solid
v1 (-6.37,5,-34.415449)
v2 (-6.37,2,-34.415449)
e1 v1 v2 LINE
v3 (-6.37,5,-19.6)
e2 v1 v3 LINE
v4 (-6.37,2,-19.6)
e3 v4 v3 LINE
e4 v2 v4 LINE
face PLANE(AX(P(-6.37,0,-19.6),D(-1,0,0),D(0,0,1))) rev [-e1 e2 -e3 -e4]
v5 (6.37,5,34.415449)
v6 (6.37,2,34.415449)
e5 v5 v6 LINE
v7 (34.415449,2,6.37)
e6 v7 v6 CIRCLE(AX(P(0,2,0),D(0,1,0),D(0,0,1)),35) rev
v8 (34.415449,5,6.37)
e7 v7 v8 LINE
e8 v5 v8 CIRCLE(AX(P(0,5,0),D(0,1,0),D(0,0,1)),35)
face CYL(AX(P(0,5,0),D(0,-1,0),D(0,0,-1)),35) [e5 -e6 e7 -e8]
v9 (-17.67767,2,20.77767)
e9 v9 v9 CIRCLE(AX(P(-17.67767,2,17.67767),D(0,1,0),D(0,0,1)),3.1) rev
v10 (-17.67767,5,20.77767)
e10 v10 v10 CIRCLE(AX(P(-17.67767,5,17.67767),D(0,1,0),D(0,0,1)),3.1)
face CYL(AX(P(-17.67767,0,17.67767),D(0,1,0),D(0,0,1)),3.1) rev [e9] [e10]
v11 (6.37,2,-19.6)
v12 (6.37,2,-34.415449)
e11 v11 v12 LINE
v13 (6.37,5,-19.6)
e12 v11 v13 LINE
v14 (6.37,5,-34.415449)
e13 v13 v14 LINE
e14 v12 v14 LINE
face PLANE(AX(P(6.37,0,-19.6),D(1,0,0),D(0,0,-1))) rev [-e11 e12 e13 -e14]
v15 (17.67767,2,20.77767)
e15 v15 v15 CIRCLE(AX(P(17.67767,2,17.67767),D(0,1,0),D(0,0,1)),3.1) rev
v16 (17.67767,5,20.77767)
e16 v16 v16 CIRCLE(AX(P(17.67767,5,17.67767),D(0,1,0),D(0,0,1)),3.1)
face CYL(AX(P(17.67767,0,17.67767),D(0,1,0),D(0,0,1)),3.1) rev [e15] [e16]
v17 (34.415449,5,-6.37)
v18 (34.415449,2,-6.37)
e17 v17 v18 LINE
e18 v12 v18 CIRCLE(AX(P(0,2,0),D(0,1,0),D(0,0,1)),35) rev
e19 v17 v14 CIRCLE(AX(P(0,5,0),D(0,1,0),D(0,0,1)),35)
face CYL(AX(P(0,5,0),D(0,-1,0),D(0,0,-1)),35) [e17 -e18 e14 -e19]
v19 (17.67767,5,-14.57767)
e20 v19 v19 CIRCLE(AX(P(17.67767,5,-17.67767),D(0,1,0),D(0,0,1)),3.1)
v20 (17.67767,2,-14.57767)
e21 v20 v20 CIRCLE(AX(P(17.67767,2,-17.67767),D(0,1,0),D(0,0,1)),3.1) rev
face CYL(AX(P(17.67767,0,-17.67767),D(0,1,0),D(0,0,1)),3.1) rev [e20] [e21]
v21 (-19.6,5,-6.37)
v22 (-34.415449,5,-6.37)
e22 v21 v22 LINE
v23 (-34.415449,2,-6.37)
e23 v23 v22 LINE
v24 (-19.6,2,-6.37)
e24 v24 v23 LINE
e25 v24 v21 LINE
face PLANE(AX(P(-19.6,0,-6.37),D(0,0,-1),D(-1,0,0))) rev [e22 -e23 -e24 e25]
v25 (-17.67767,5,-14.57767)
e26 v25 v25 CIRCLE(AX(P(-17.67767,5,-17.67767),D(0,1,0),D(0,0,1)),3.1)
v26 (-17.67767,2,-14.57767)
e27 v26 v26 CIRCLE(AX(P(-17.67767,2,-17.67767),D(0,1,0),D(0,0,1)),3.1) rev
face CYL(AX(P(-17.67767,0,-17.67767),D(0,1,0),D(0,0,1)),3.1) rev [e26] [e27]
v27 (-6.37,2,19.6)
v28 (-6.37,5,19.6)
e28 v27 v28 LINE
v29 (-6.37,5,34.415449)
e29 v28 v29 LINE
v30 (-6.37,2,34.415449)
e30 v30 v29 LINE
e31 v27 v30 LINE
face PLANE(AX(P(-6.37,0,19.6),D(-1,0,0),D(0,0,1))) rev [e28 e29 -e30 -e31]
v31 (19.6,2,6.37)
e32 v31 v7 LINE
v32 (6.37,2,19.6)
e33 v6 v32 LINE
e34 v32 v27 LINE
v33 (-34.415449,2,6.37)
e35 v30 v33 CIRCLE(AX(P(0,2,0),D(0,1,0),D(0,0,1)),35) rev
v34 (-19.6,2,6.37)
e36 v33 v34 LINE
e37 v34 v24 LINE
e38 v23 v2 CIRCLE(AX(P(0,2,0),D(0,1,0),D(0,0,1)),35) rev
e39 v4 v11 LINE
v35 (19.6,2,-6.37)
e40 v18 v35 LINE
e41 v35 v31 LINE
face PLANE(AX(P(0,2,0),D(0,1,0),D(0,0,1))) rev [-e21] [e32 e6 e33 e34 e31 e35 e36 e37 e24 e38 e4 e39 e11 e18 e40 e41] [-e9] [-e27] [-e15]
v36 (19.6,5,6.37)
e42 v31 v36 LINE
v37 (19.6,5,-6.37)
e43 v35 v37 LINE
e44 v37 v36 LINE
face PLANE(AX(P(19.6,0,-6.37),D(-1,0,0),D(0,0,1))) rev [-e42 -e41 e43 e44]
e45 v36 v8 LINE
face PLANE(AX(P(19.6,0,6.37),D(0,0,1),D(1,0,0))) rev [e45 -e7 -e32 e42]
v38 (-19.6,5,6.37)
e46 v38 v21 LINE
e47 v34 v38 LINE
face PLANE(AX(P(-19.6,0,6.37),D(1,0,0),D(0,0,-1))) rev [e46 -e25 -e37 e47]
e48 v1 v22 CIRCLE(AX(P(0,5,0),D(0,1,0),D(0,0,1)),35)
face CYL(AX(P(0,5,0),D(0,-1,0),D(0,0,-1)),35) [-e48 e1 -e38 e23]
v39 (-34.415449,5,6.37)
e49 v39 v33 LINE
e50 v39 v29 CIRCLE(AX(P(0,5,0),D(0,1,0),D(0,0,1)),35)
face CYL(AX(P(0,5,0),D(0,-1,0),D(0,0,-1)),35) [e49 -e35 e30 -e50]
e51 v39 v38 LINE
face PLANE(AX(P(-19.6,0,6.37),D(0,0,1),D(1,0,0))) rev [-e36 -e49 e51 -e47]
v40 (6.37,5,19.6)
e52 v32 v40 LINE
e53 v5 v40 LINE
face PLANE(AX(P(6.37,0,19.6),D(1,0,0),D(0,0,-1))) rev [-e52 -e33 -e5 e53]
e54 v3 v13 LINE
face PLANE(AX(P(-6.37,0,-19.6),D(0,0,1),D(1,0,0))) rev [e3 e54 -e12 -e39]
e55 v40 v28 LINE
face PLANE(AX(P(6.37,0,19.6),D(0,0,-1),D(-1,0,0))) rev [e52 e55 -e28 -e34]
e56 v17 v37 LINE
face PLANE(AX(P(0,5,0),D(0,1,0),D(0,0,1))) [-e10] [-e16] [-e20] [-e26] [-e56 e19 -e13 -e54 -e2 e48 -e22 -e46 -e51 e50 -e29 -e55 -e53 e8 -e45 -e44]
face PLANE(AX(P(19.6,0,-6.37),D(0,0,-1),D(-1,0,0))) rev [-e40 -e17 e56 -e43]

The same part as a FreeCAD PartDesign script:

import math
import FreeCAD as App
import Part
import Sketcher
Q = App.Units.Quantity

doc = App.newDocument("Part")
params = doc.addObject("Spreadsheet::Sheet", "Params")
for row, (alias, value) in enumerate([
    ("sketch1_diameter", "70 mm"),
    ("pad1_length", "5 mm"),
    ("sketch2_diameter", "6.2 mm"),
    ("sketch3_height", "10.8 mm"),
    ("sketch3_width", "12.74 mm"),
    ("pocket2_length", "5 mm"),
    ("sketch4_height", "5 mm"),
    ("sketch4_width", "12.74 mm"),
    ("sketch5_radius", "35 mm"),
    ("sketch5_width", "12.74 mm"),
    ("pocket4_length", "2 mm"),
], start=1):
    params.set(f"A{row}", alias)
    params.set(f"B{row}", "=" + value)
    params.setAlias(f"B{row}", alias)

body = doc.addObject("PartDesign::Body", "Body")

# Sketch on XZ plane
sketch1 = body.newObject("Sketcher::SketchObject", "Sketch")
sketch1.AttachmentSupport = (doc.getObject("XZ_Plane"), [""])
sketch1.MapMode = "FlatFace"
sketch1.addGeometry(Part.Circle(App.Vector(0, 0, 0), App.Vector(0, 0, 1), 35), False)
sketch1.addConstraint([
    Sketcher.Constraint("Coincident", 0, 3, -1, 1),
    Sketcher.Constraint("Diameter", 0, Q("70 mm")),
])
sketch1.setExpression("Constraints[1]", "Params.sketch1_diameter")
pad1 = body.newObject("PartDesign::Pad", "Pad")
pad1.Profile = sketch1
pad1.setExpression("Length", "Params.pad1_length")
pad1.Reversed = True

# Sketch on XZ plane
sketch2 = body.newObject("Sketcher::SketchObject", "Sketch001")
sketch2.AttachmentSupport = (doc.getObject("XZ_Plane"), [""])
sketch2.MapMode = "FlatFace"
sketch2.AttachmentOffset = App.Placement(App.Vector(0, 0, -5), App.Rotation())
sketch2.addGeometry([
    Part.Circle(App.Vector(-17.7, -17.7, 0), App.Vector(0, 0, 1), 3.1),
    Part.Circle(App.Vector(17.7, -17.7, 0), App.Vector(0, 0, 1), 3.1),
    Part.Circle(App.Vector(17.7, 17.7, 0), App.Vector(0, 0, 1), 3.1),
    Part.Circle(App.Vector(-17.7, 17.7, 0), App.Vector(0, 0, 1), 3.1),
], False)
sketch2.addConstraint([
    Sketcher.Constraint("Equal", 0, 1),
    Sketcher.Constraint("Equal", 1, 2),
    Sketcher.Constraint("Equal", 2, 3),
    Sketcher.Constraint("Symmetric", 0, 3, 2, 3, -1, 1),
    Sketcher.Constraint("Symmetric", 1, 3, 3, 3, -1, 1),
    Sketcher.Constraint("Symmetric", 0, 3, 1, 3, -2),
    Sketcher.Constraint("Diameter", 0, Q("6.2 mm")),
    Sketcher.Constraint("DistanceX", 0, 3, -1, 1, Q("17.67767 mm")),
    Sketcher.Constraint("DistanceY", 0, 3, -1, 1, Q("17.67767 mm")),
])
sketch2.setExpression("Constraints[6]", "Params.sketch2_diameter")
pocket1 = body.newObject("PartDesign::Pocket", "Pocket")
pocket1.Profile = sketch2
pocket1.Type = "ThroughAll"
pocket1.Reversed = True

# Sketch on XZ plane
sketch3 = body.newObject("Sketcher::SketchObject", "Sketch002")
sketch3.AttachmentSupport = (doc.getObject("XZ_Plane"), [""])
sketch3.MapMode = "FlatFace"
sketch3.AttachmentOffset = App.Placement(App.Vector(0, 0, -5), App.Rotation())
sketch3.addGeometry([
    Part.LineSegment(App.Vector(-6, -30, 0), App.Vector(-6, -20, 0)),
    Part.LineSegment(App.Vector(-6, -20, 0), App.Vector(6, -20, 0)),
    Part.LineSegment(App.Vector(6, -20, 0), App.Vector(6, -30, 0)),
    Part.LineSegment(App.Vector(6, -30, 0), App.Vector(-6, -30, 0)),
], False)
sketch3.addConstraint([
    Sketcher.Constraint("Coincident", 0, 2, 1, 1),
    Sketcher.Constraint("Coincident", 1, 2, 2, 1),
    Sketcher.Constraint("Coincident", 2, 2, 3, 1),
    Sketcher.Constraint("Coincident", 3, 2, 0, 1),
    Sketcher.Constraint("Vertical", 0),
    Sketcher.Constraint("Horizontal", 1),
    Sketcher.Constraint("Vertical", 2),
    Sketcher.Constraint("Horizontal", 3),
    Sketcher.Constraint("DistanceY", 0, 1, 0, 2, Q("10.8 mm")),
    Sketcher.Constraint("DistanceX", 1, 1, 1, 2, Q("12.74 mm")),
    Sketcher.Constraint("DistanceY", 0, 2, -1, 1, Q("19.6 mm")),
    Sketcher.Constraint("DistanceX", 0, 2, -1, 1, Q("6.37 mm")),
])
sketch3.setExpression("Constraints[8]", "Params.sketch3_height")
sketch3.setExpression("Constraints[9]", "Params.sketch3_width")
pocket2 = body.newObject("PartDesign::Pocket", "Pocket001")
pocket2.Profile = sketch3
pocket2.setExpression("Length", "Params.pocket2_length")
pocket2.Reversed = True
doc.recompute()

polarpattern = body.newObject("PartDesign::PolarPattern", "PolarPattern")
polarpattern.Originals = [pocket2]
polarpattern.Axis = (doc.getObject("Y_Axis"), [""])
polarpattern.Angle = 360
polarpattern.Occurrences = 4
body.Tip = polarpattern

# Sketch on XY plane
sketch4 = body.newObject("Sketcher::SketchObject", "Sketch003")
sketch4.AttachmentSupport = (doc.getObject("XY_Plane"), [""])
sketch4.MapMode = "FlatFace"
sketch4.AttachmentOffset = App.Placement(App.Vector(0, 0, -30.4), App.Rotation())
sketch4.addGeometry([
    Part.LineSegment(App.Vector(-6, 5, 0), App.Vector(-6, 0, 0)),
    Part.LineSegment(App.Vector(-6, 0, 0), App.Vector(6, 0, 0)),
    Part.LineSegment(App.Vector(6, 0, 0), App.Vector(6, 5, 0)),
    Part.LineSegment(App.Vector(6, 5, 0), App.Vector(-6, 5, 0)),
], False)
sketch4.addConstraint([
    Sketcher.Constraint("Coincident", 0, 2, 1, 1),
    Sketcher.Constraint("Coincident", 1, 2, 2, 1),
    Sketcher.Constraint("Coincident", 2, 2, 3, 1),
    Sketcher.Constraint("Coincident", 3, 2, 0, 1),
    Sketcher.Constraint("Vertical", 0),
    Sketcher.Constraint("Horizontal", 1),
    Sketcher.Constraint("Vertical", 2),
    Sketcher.Constraint("Horizontal", 3),
    Sketcher.Constraint("Symmetric", 0, 2, 1, 2, -1, 1),
    Sketcher.Constraint("DistanceY", 0, 2, 0, 1, Q("5 mm")),
    Sketcher.Constraint("DistanceX", 1, 1, 1, 2, Q("12.74 mm")),
])
sketch4.setExpression("Constraints[9]", "Params.sketch4_height")
sketch4.setExpression("Constraints[10]", "Params.sketch4_width")
pocket3 = body.newObject("PartDesign::Pocket", "Pocket002")
pocket3.Profile = sketch4
pocket3.Type = "ThroughAll"
doc.recompute()

polarpattern2 = body.newObject("PartDesign::PolarPattern", "PolarPattern001")
polarpattern2.Originals = [pocket3]
polarpattern2.Axis = (doc.getObject("Y_Axis"), [""])
polarpattern2.Angle = 360
polarpattern2.Occurrences = 4
body.Tip = polarpattern2

# Sketch on XZ plane
sketch5 = body.newObject("Sketcher::SketchObject", "Sketch004")
sketch5.AttachmentSupport = (doc.getObject("XZ_Plane"), [""])
sketch5.MapMode = "FlatFace"
sketch5.addGeometry([
    Part.LineSegment(App.Vector(-20, -6, 0), App.Vector(-34, -6, 0)),  # 0
    Part.ArcOfCircle(Part.Circle(App.Vector(0, 0, 0), App.Vector(0, 0, 1), 35), math.radians(-170), math.radians(-100)),  # 1
    Part.LineSegment(App.Vector(-6, -34, 0), App.Vector(-6, -20, 0)),  # 2
    Part.LineSegment(App.Vector(-6, -20, 0), App.Vector(6, -20, 0)),  # 3
    Part.LineSegment(App.Vector(6, -20, 0), App.Vector(6, -34, 0)),  # 4
    Part.ArcOfCircle(Part.Circle(App.Vector(0, 0, 0), App.Vector(0, 0, 1), 35), math.radians(-80), math.radians(-10)),  # 5
    Part.LineSegment(App.Vector(34, -6, 0), App.Vector(20, -6, 0)),  # 6
    Part.LineSegment(App.Vector(20, -6, 0), App.Vector(20, 6, 0)),  # 7
    Part.LineSegment(App.Vector(20, 6, 0), App.Vector(34, 6, 0)),  # 8
    Part.ArcOfCircle(Part.Circle(App.Vector(0, 0, 0), App.Vector(0, 0, 1), 35), math.radians(10), math.radians(80)),  # 9
    Part.LineSegment(App.Vector(6, 34, 0), App.Vector(6, 20, 0)),  # 10
    Part.LineSegment(App.Vector(6, 20, 0), App.Vector(-6, 20, 0)),  # 11
    Part.LineSegment(App.Vector(-6, 20, 0), App.Vector(-6, 34, 0)),  # 12
    Part.ArcOfCircle(Part.Circle(App.Vector(0, 0, 0), App.Vector(0, 0, 1), 35), math.radians(100), math.radians(170)),  # 13
    Part.LineSegment(App.Vector(-34, 6, 0), App.Vector(-20, 6, 0)),  # 14
    Part.LineSegment(App.Vector(-20, 6, 0), App.Vector(-20, -6, 0)),  # 15
], False)
sketch5.addConstraint([
    Sketcher.Constraint("Coincident", 0, 2, 1, 1),
    Sketcher.Constraint("Coincident", 1, 2, 2, 1),
    Sketcher.Constraint("Coincident", 2, 2, 3, 1),
    Sketcher.Constraint("Coincident", 3, 2, 4, 1),
    Sketcher.Constraint("Coincident", 4, 2, 5, 1),
    Sketcher.Constraint("Coincident", 5, 2, 6, 1),
    Sketcher.Constraint("Coincident", 6, 2, 7, 1),
    Sketcher.Constraint("Coincident", 7, 2, 8, 1),
    Sketcher.Constraint("Coincident", 8, 2, 9, 1),
    Sketcher.Constraint("Coincident", 9, 2, 10, 1),
    Sketcher.Constraint("Coincident", 10, 2, 11, 1),
    Sketcher.Constraint("Coincident", 11, 2, 12, 1),
    Sketcher.Constraint("Coincident", 12, 2, 13, 1),
    Sketcher.Constraint("Coincident", 13, 2, 14, 1),
    Sketcher.Constraint("Coincident", 14, 2, 15, 1),
    Sketcher.Constraint("Coincident", 15, 2, 0, 1),
    Sketcher.Constraint("Horizontal", 0),
    Sketcher.Constraint("Vertical", 2),
    Sketcher.Constraint("Horizontal", 3),
    Sketcher.Constraint("Vertical", 4),
    Sketcher.Constraint("Horizontal", 6),
    Sketcher.Constraint("Vertical", 7),
    Sketcher.Constraint("Horizontal", 8),
    Sketcher.Constraint("Vertical", 10),
    Sketcher.Constraint("Horizontal", 11),
    Sketcher.Constraint("Vertical", 12),
    Sketcher.Constraint("Horizontal", 14),
    Sketcher.Constraint("Vertical", 15),
    Sketcher.Constraint("Coincident", 1, 3, -1, 1),
    Sketcher.Constraint("Coincident", 5, 3, -1, 1),
    Sketcher.Constraint("Coincident", 9, 3, -1, 1),
    Sketcher.Constraint("Coincident", 13, 3, -1, 1),
    Sketcher.Constraint("Equal", 1, 5),
    Sketcher.Constraint("Equal", 5, 9),
    Sketcher.Constraint("Equal", 9, 13),
    Sketcher.Constraint("Symmetric", 2, 2, 10, 2, -1, 1),
    Sketcher.Constraint("Symmetric", 6, 2, 14, 2, -1, 1),
    Sketcher.Constraint("Horizontal", 1, 2, 4, 2),
    Sketcher.Constraint("Horizontal", 0, 2, 5, 2),
    Sketcher.Constraint("Horizontal", 9, 2, 12, 2),
    Sketcher.Constraint("Horizontal", 8, 2, 13, 2),
    Sketcher.Constraint("Equal", 14, 2),
    Sketcher.Constraint("Equal", 11, 7),
    Sketcher.Constraint("Radius", 1, Q("35 mm")),
    Sketcher.Constraint("DistanceX", 3, 1, 3, 2, Q("12.74 mm")),
    Sketcher.Constraint("DistanceY", 2, 2, -1, 1, Q("19.6 mm")),
])
sketch5.setExpression("Constraints[43]", "Params.sketch5_radius")
sketch5.setExpression("Constraints[44]", "Params.sketch5_width")
pocket4 = body.newObject("PartDesign::Pocket", "Pocket003")
pocket4.Profile = sketch5
pocket4.setExpression("Length", "Params.pocket4_length")

doc.recompute()
